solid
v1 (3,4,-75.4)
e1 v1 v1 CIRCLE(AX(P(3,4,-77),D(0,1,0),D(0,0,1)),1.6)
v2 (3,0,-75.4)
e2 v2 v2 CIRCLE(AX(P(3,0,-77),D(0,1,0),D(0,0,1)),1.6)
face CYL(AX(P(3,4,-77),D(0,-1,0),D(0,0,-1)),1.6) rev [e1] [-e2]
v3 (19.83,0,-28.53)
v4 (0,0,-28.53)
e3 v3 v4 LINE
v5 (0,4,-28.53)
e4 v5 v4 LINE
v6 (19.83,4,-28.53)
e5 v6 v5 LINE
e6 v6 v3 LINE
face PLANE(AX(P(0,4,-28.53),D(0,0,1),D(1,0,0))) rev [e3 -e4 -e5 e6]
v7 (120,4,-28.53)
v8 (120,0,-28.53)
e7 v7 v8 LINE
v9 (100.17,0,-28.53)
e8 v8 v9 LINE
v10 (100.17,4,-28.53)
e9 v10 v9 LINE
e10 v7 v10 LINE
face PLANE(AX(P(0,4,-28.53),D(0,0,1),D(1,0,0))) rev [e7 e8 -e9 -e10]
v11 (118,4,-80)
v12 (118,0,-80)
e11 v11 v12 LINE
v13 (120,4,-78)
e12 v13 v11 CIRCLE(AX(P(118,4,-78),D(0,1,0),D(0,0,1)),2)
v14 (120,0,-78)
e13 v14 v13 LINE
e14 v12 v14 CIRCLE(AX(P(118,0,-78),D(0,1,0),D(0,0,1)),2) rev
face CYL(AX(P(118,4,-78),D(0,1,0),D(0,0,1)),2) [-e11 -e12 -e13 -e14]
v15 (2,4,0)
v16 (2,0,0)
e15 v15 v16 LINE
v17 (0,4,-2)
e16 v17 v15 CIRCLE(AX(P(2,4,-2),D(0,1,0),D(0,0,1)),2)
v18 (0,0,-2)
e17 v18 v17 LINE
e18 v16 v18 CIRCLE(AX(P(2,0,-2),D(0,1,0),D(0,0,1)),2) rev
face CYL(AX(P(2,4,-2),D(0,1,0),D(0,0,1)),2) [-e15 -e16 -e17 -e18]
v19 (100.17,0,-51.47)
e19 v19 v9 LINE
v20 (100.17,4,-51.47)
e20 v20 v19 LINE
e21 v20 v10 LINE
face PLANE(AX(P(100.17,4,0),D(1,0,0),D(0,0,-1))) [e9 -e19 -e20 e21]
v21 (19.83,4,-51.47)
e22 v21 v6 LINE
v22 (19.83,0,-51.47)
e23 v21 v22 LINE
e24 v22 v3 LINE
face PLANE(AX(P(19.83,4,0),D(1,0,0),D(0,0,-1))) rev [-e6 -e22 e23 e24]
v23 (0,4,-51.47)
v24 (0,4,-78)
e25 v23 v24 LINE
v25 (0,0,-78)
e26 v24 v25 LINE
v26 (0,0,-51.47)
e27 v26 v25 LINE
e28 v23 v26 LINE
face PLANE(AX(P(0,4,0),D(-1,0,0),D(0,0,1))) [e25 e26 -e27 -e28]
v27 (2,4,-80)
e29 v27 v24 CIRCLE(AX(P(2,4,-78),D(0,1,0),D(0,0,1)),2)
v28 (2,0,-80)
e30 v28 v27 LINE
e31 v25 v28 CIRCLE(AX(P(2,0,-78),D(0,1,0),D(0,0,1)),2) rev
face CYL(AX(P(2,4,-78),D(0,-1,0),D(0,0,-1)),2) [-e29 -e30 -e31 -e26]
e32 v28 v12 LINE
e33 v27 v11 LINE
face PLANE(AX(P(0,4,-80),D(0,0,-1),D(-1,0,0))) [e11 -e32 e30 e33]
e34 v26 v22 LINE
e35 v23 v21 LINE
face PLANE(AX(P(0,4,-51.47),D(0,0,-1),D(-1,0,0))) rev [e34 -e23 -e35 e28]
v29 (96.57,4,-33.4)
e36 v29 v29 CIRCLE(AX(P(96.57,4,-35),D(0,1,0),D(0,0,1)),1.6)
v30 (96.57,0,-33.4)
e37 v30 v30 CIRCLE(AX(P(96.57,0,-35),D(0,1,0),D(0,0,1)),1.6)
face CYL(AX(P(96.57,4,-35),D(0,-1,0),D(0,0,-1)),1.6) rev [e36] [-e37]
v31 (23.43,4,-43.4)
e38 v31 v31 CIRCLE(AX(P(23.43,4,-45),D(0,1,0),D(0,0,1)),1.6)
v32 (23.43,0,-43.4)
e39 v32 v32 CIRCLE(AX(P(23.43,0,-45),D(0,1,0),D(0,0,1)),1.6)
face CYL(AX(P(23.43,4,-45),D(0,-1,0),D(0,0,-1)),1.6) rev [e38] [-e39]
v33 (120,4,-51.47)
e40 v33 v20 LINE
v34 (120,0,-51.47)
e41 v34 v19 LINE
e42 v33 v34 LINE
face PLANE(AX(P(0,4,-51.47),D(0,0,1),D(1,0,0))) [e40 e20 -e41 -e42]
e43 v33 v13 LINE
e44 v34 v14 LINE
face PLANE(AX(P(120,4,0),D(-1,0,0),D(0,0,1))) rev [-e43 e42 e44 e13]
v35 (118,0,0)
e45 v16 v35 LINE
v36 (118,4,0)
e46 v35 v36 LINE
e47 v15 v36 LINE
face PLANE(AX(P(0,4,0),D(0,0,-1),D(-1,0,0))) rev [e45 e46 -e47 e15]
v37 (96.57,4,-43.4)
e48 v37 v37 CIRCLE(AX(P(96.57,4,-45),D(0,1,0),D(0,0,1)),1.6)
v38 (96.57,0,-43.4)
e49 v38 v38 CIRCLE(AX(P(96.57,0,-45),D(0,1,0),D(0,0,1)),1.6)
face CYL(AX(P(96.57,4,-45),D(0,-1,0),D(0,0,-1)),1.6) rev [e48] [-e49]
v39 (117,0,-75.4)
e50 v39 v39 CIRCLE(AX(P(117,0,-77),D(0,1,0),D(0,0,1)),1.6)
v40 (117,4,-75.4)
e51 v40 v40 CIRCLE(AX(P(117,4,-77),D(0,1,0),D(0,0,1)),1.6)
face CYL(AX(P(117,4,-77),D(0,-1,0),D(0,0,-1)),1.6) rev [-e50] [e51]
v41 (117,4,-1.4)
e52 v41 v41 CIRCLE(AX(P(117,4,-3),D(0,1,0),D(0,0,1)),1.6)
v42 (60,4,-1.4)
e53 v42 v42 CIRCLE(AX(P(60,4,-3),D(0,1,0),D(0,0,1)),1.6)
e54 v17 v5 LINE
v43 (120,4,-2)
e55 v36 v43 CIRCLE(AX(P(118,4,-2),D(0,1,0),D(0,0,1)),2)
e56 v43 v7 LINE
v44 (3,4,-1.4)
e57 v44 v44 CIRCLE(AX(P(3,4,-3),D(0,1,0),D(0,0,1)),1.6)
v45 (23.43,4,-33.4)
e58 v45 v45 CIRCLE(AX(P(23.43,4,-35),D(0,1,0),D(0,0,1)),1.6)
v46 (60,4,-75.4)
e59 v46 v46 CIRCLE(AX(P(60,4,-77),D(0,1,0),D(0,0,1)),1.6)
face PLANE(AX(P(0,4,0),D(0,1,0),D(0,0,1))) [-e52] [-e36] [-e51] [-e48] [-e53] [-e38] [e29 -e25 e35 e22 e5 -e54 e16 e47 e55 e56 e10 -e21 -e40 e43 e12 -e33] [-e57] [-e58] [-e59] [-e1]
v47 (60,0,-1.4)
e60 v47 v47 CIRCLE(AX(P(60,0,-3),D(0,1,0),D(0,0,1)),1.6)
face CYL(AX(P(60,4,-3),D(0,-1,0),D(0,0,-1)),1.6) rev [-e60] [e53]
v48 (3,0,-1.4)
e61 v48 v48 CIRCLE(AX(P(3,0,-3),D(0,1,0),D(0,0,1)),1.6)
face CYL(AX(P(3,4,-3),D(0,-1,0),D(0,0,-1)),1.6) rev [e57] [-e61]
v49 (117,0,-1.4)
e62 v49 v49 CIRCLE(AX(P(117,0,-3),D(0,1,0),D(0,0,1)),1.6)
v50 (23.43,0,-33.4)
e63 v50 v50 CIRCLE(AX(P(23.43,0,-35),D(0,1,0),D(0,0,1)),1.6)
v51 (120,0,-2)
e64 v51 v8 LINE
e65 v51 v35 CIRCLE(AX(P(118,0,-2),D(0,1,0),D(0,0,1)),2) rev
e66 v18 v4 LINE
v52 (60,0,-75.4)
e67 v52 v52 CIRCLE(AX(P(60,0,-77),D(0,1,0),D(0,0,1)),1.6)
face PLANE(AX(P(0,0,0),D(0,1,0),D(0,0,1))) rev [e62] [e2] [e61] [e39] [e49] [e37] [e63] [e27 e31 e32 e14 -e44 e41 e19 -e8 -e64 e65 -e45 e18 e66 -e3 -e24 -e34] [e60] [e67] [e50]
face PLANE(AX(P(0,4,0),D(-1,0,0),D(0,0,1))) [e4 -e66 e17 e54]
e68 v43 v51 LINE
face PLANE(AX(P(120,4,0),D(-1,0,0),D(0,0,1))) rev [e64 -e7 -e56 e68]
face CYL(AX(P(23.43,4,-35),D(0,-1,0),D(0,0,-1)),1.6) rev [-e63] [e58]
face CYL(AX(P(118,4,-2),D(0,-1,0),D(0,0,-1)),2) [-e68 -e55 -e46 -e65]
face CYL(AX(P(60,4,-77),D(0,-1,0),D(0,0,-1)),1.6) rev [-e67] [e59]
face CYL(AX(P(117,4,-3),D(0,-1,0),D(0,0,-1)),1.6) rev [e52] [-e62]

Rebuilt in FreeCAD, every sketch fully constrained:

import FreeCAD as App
import Part
import Sketcher
from FreeCAD import Vector
Q = App.Units.Quantity


def edges_at(feature, points):
    """Names of the edges that pass closest to the given points."""
    edges = feature.Shape.Edges
    near = lambda p: min(range(len(edges)), key=lambda i: edges[i].distToShape(Part.Vertex(*p))[0])
    return sorted({f"Edge{near(p) + 1}" for p in points})

doc = App.newDocument("Part")
body = doc.addObject("PartDesign::Body", "Body")

# Sketch on XZ plane
sketch1 = body.newObject("Sketcher::SketchObject", "Sketch")
sketch1.AttachmentSupport = (doc.getObject("XZ_Plane"), [""])
sketch1.MapMode = "FlatFace"
sketch1.addGeometry([
    Part.LineSegment(Vector(0, -28.53, 0), Vector(0, 0, 0)),  # 0
    Part.LineSegment(Vector(0, 0, 0), Vector(120, 0, 0)),  # 1
    Part.LineSegment(Vector(120, 0, 0), Vector(120, -28.53, 0)),  # 2
    Part.LineSegment(Vector(120, -28.53, 0), Vector(100.17, -28.53, 0)),  # 3
    Part.LineSegment(Vector(100.17, -28.53, 0), Vector(100.17, -51.47, 0)),  # 4
    Part.LineSegment(Vector(100.17, -51.47, 0), Vector(120, -51.47, 0)),  # 5
    Part.LineSegment(Vector(120, -51.47, 0), Vector(120, -80, 0)),  # 6
    Part.LineSegment(Vector(120, -80, 0), Vector(0, -80, 0)),  # 7
    Part.LineSegment(Vector(0, -80, 0), Vector(0, -51.47, 0)),  # 8
    Part.LineSegment(Vector(0, -51.47, 0), Vector(19.83, -51.47, 0)),  # 9
    Part.LineSegment(Vector(19.83, -51.47, 0), Vector(19.83, -28.53, 0)),  # 10
    Part.LineSegment(Vector(19.83, -28.53, 0), Vector(0, -28.53, 0)),  # 11
    Part.Circle(Vector(3, -3, 0), Vector(0, 0, 1), 1.6),  # 12
    Part.Circle(Vector(23.43, -35, 0), Vector(0, 0, 1), 1.6),  # 13
    Part.Circle(Vector(60, -3, 0), Vector(0, 0, 1), 1.6),  # 14
    Part.Circle(Vector(117, -3, 0), Vector(0, 0, 1), 1.6),  # 15
    Part.Circle(Vector(96.57, -35, 0), Vector(0, 0, 1), 1.6),  # 16
    Part.Circle(Vector(23.43, -45, 0), Vector(0, 0, 1), 1.6),  # 17
    Part.Circle(Vector(3, -77, 0), Vector(0, 0, 1), 1.6),  # 18
    Part.Circle(Vector(96.57, -45, 0), Vector(0, 0, 1), 1.6),  # 19
    Part.Circle(Vector(60, -77, 0), Vector(0, 0, 1), 1.6),  # 20
    Part.Circle(Vector(117, -77, 0), Vector(0, 0, 1), 1.6),  # 21
], False)
sketch1.addConstraint([
    Sketcher.Constraint("Coincident", 0, 2, 1, 1),
    Sketcher.Constraint("Coincident", 1, 2, 2, 1),
    Sketcher.Constraint("Coincident", 2, 2, 3, 1),
    Sketcher.Constraint("Coincident", 3, 2, 4, 1),
    Sketcher.Constraint("Coincident", 4, 2, 5, 1),
    Sketcher.Constraint("Coincident", 5, 2, 6, 1),
    Sketcher.Constraint("Coincident", 6, 2, 7, 1),
    Sketcher.Constraint("Coincident", 7, 2, 8, 1),
    Sketcher.Constraint("Coincident", 8, 2, 9, 1),
    Sketcher.Constraint("Coincident", 9, 2, 10, 1),
    Sketcher.Constraint("Coincident", 10, 2, 11, 1),
    Sketcher.Constraint("Coincident", 11, 2, 0, 1),
    Sketcher.Constraint("Vertical", 0),
    Sketcher.Constraint("Horizontal", 1),
    Sketcher.Constraint("Vertical", 2),
    Sketcher.Constraint("Horizontal", 3),
    Sketcher.Constraint("Vertical", 4),
    Sketcher.Constraint("Horizontal", 5),
    Sketcher.Constraint("Vertical", 6),
    Sketcher.Constraint("Horizontal", 7),
    Sketcher.Constraint("Vertical", 8),
    Sketcher.Constraint("Horizontal", 9),
    Sketcher.Constraint("Vertical", 10),
    Sketcher.Constraint("Horizontal", 11),
    Sketcher.Constraint("Coincident", 0, 2, -1, 1),
    Sketcher.Constraint("Equal", 12, 13),
    Sketcher.Constraint("Equal", 13, 14),
    Sketcher.Constraint("Equal", 14, 15),
    Sketcher.Constraint("Equal", 15, 16),
    Sketcher.Constraint("Equal", 16, 17),
    Sketcher.Constraint("Equal", 17, 18),
    Sketcher.Constraint("Equal", 18, 19),
    Sketcher.Constraint("Equal", 19, 20),
    Sketcher.Constraint("Equal", 20, 21),
    Sketcher.Constraint("PointOnObject", 7, 2, -2),
    Sketcher.Constraint("Horizontal", 12, 3, 14, 3),
    Sketcher.Constraint("Horizontal", 14, 3, 15, 3),
    Sketcher.Constraint("Horizontal", 13, 3, 16, 3),
    Sketcher.Constraint("Horizontal", 17, 3, 19, 3),
    Sketcher.Constraint("Horizontal", 18, 3, 20, 3),
    Sketcher.Constraint("Horizontal", 20, 3, 21, 3),
    Sketcher.Constraint("Horizontal", 5, 2, 8, 2),
    Sketcher.Constraint("Horizontal", 3, 2, 10, 2),
    Sketcher.Constraint("Vertical", 13, 3, 17, 3),
    Sketcher.Constraint("Vertical", 12, 3, 18, 3),
    Sketcher.Constraint("Vertical", 16, 3, 19, 3),
    Sketcher.Constraint("Vertical", 14, 3, 20, 3),
    Sketcher.Constraint("Vertical", 15, 3, 21, 3),
    Sketcher.Constraint("Vertical", 2, 2, 5, 2),
    Sketcher.Constraint("Equal", 5, 9),
    Sketcher.Constraint("Equal", 2, 6),
    Sketcher.Constraint("Diameter", 12, Q("3.2 mm")),
    Sketcher.Constraint("DistanceX", 1, 1, 1, 2, Q("120 mm")),
    Sketcher.Constraint("DistanceX", -1, 1, 12, 3, Q("3 mm")),
    Sketcher.Constraint("DistanceY", 12, 3, -1, 1, Q("3 mm")),
    Sketcher.Constraint("DistanceY", 13, 3, -1, 1, Q("35 mm")),
    Sketcher.Constraint("DistanceX", -1, 1, 14, 3, Q("60 mm")),
    Sketcher.Constraint("DistanceX", -1, 1, 15, 3, Q("117 mm")),
    Sketcher.Constraint("DistanceY", 17, 3, -1, 1, Q("45 mm")),
    Sketcher.Constraint("DistanceY", 18, 3, -1, 1, Q("77 mm")),
    Sketcher.Constraint("DistanceY", 6, 2, -1, 1, Q("80 mm")),
    Sketcher.Constraint("DistanceX", 3, 2, 3, 1, Q("19.83 mm")),
    Sketcher.Constraint("DistanceY", 0, 1, 0, 2, Q("28.53 mm")),
    Sketcher.Constraint("DistanceX", 16, 3, 3, 2, Q("3.6 mm")),
    Sketcher.Constraint("DistanceX", 9, 2, 17, 3, Q("3.6 mm")),
])
pad1 = body.newObject("PartDesign::Pad", "Pad")
pad1.Profile = sketch1
pad1.Length = 4
pad1.Reversed = True
doc.recompute()

fillet = body.newObject("PartDesign::Fillet", "Fillet")
fillet.Base = (pad1, edges_at(pad1, [(0, 2, -80)]))
fillet.Radius = 2
doc.recompute()

fillet2 = body.newObject("PartDesign::Fillet", "Fillet001")
fillet2.Base = (fillet, edges_at(fillet, [(120, 2, -80)]))
fillet2.Radius = 2
doc.recompute()

fillet3 = body.newObject("PartDesign::Fillet", "Fillet002")
fillet3.Base = (fillet2, edges_at(fillet2, [(120, 2, 0)]))
fillet3.Radius = 2
doc.recompute()

fillet4 = body.newObject("PartDesign::Fillet", "Fillet003")
fillet4.Base = (fillet3, edges_at(fillet3, [(0, 2, 0)]))
fillet4.Radius = 2

doc.recompute()
